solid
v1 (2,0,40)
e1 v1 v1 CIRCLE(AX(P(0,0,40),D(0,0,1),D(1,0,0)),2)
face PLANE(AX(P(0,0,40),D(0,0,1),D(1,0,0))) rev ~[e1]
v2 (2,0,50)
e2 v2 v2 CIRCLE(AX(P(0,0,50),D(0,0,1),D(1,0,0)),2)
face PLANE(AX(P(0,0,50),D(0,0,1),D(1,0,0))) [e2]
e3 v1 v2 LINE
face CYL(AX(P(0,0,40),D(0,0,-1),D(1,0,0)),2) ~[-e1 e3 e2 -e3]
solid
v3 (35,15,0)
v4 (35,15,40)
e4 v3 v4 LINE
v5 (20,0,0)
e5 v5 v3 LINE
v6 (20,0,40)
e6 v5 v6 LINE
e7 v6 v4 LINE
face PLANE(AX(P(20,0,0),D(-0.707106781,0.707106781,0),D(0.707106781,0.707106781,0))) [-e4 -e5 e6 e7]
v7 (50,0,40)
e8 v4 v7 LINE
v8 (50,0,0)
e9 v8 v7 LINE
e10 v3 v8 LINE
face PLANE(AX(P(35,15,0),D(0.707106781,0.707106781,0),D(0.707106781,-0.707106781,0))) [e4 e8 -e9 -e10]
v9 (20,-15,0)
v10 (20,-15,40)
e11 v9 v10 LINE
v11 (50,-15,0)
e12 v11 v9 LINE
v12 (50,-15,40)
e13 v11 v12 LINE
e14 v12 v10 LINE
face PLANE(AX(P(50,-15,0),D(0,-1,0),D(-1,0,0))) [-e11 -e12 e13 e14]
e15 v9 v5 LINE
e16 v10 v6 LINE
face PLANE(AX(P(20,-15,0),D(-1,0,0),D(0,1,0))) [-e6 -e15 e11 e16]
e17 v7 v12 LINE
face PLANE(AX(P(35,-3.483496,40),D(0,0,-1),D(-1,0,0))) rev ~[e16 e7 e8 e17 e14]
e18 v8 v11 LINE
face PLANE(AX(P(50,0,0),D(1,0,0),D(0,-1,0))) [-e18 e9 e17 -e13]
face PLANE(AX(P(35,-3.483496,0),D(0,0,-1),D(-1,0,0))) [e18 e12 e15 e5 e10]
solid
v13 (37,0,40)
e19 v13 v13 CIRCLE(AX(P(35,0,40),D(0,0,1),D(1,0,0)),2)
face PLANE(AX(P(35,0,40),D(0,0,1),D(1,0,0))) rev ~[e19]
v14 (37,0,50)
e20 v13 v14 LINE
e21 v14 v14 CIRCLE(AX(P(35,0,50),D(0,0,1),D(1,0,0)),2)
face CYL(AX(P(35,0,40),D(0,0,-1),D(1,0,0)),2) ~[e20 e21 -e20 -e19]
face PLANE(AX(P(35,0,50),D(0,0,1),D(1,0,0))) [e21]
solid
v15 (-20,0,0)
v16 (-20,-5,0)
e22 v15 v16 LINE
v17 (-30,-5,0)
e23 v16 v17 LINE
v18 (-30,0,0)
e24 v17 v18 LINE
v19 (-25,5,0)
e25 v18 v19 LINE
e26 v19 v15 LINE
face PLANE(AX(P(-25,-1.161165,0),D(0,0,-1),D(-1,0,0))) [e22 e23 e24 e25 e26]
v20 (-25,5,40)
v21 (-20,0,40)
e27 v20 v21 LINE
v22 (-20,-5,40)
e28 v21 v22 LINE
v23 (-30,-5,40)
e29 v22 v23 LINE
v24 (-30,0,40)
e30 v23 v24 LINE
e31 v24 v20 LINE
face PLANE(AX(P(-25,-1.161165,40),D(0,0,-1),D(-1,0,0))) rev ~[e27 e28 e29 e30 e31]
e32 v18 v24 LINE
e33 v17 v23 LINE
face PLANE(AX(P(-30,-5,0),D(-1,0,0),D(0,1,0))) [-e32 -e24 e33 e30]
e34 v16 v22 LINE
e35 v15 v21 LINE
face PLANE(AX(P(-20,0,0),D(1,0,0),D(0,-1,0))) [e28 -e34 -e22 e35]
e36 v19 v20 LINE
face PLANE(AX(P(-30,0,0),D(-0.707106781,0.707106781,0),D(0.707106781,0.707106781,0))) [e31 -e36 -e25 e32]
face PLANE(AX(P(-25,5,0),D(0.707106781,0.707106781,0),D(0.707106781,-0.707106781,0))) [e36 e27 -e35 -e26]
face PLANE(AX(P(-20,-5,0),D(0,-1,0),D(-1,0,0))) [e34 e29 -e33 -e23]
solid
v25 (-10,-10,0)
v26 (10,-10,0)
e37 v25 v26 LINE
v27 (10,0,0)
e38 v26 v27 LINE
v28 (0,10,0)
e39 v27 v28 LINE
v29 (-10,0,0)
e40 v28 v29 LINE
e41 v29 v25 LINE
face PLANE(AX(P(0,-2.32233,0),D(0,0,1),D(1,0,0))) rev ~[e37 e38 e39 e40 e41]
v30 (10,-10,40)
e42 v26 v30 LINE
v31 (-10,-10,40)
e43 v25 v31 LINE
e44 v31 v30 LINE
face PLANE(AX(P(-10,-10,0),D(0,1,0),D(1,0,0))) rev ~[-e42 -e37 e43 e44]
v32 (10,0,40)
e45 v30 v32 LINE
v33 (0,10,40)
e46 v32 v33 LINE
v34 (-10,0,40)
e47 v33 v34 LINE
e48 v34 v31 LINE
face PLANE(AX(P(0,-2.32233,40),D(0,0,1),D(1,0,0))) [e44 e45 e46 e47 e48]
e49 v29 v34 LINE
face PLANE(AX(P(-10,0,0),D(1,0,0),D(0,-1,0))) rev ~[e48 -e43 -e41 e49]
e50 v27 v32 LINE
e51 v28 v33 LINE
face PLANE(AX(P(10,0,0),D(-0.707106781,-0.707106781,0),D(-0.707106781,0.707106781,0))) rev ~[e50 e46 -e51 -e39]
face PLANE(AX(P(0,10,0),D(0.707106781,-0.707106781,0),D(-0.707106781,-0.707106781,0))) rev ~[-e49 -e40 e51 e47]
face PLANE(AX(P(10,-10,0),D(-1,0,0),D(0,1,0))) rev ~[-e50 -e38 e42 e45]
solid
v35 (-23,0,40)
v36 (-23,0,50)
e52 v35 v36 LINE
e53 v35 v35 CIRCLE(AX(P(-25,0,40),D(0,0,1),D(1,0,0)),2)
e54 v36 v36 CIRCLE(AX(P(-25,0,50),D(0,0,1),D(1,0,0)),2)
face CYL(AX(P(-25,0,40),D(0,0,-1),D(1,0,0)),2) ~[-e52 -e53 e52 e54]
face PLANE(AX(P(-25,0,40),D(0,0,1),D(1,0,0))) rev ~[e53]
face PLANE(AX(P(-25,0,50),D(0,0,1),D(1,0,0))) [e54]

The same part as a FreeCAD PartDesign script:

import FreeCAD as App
import Part
import Sketcher

V = App.Vector
Q = App.Units.Quantity

doc = App.newDocument("Part")
body = doc.addObject("PartDesign::Body", "Body")
body.AllowCompound = True

# Sketch on XY plane
sketch1 = body.newObject("Sketcher::SketchObject", "Sketch")
sketch1.AttachmentSupport = (doc.getObject("XY_Plane"), [""])
sketch1.MapMode = "FlatFace"
sketch1.addGeometry([
    Part.LineSegment(V(0, 10, 0), V(-10, 0, 0)),  # 0
    Part.LineSegment(V(-10, 0, 0), V(-10, -10, 0)),  # 1
    Part.LineSegment(V(-10, -10, 0), V(10, -10, 0)),  # 2
    Part.LineSegment(V(10, -10, 0), V(10, 0, 0)),  # 3
    Part.LineSegment(V(10, 0, 0), V(0, 10, 0)),  # 4
    Part.LineSegment(V(-25, 5, 0), V(-30, 0, 0)),  # 5
    Part.LineSegment(V(-30, 0, 0), V(-30, -5, 0)),  # 6
    Part.LineSegment(V(-30, -5, 0), V(-20, -5, 0)),  # 7
    Part.LineSegment(V(-20, -5, 0), V(-20, 0, 0)),  # 8
    Part.LineSegment(V(-20, 0, 0), V(-25, 5, 0)),  # 9
    Part.LineSegment(V(35, 15, 0), V(20, 0, 0)),  # 10
    Part.LineSegment(V(20, 0, 0), V(20, -15, 0)),  # 11
    Part.LineSegment(V(20, -15, 0), V(50, -15, 0)),  # 12
    Part.LineSegment(V(50, -15, 0), V(50, 0, 0)),  # 13
    Part.LineSegment(V(50, 0, 0), V(35, 15, 0)),  # 14
], False)
sketch1.addConstraint([
    Sketcher.Constraint("Coincident", 0, 2, 1, 1),
    Sketcher.Constraint("Coincident", 1, 2, 2, 1),
    Sketcher.Constraint("Coincident", 2, 2, 3, 1),
    Sketcher.Constraint("Coincident", 3, 2, 4, 1),
    Sketcher.Constraint("Coincident", 4, 2, 0, 1),
    Sketcher.Constraint("Coincident", 5, 2, 6, 1),
    Sketcher.Constraint("Coincident", 6, 2, 7, 1),
    Sketcher.Constraint("Coincident", 7, 2, 8, 1),
    Sketcher.Constraint("Coincident", 8, 2, 9, 1),
    Sketcher.Constraint("Coincident", 9, 2, 5, 1),
    Sketcher.Constraint("Coincident", 10, 2, 11, 1),
    Sketcher.Constraint("Coincident", 11, 2, 12, 1),
    Sketcher.Constraint("Coincident", 12, 2, 13, 1),
    Sketcher.Constraint("Coincident", 13, 2, 14, 1),
    Sketcher.Constraint("Coincident", 14, 2, 10, 1),
    Sketcher.Constraint("Vertical", 1),
    Sketcher.Constraint("Horizontal", 2),
    Sketcher.Constraint("Vertical", 3),
    Sketcher.Constraint("Vertical", 6),
    Sketcher.Constraint("Horizontal", 7),
    Sketcher.Constraint("Vertical", 8),
    Sketcher.Constraint("Vertical", 11),
    Sketcher.Constraint("Horizontal", 12),
    Sketcher.Constraint("Vertical", 13),
    Sketcher.Constraint("Symmetric", 0, 2, 3, 2, -1, 1),
    Sketcher.Constraint("Symmetric", 8, 2, 10, 2, -1, 1),
    Sketcher.Constraint("PointOnObject", 0, 2, -1),
    Sketcher.Constraint("PointOnObject", 4, 2, -2),
    Sketcher.Constraint("PointOnObject", 5, 2, -1),
    Sketcher.Constraint("PointOnObject", 8, 2, -1),
    Sketcher.Constraint("PointOnObject", 13, 2, -1),
    Sketcher.Constraint("Perpendicular", 0, 4),
    Sketcher.Constraint("Perpendicular", 4, 5),
    Sketcher.Constraint("Perpendicular", 5, 9),
    Sketcher.Constraint("Perpendicular", 9, 10),
    Sketcher.Constraint("Perpendicular", 10, 14),
    Sketcher.Constraint("Equal", 7, 1),
    Sketcher.Constraint("DistanceX", 2, 1, 2, 2, Q("20 mm")),
    Sketcher.Constraint("DistanceX", 7, 1, 7, 2, Q("10 mm")),
    Sketcher.Constraint("DistanceX", 12, 1, 12, 2, Q("30 mm")),
    Sketcher.Constraint("DistanceY", 6, 2, 6, 1, Q("5 mm")),
    Sketcher.Constraint("DistanceY", 11, 2, 11, 1, Q("15 mm")),
    Sketcher.Constraint("DistanceX", 5, 2, -1, 1, Q("30 mm")),
])
pad1 = body.newObject("PartDesign::Pad", "Pad")
pad1.Profile = sketch1
pad1.Length = 40
body2 = doc.addObject("PartDesign::Body", "Body001")

# Sketch on XY plane
sketch2 = body2.newObject("Sketcher::SketchObject", "Sketch001")
sketch2.AttachmentSupport = (doc.getObject("XY_Plane001"), [""])
sketch2.MapMode = "FlatFace"
sketch2.AttachmentOffset = App.Placement(V(0, 0, 40), App.Rotation())
sketch2.addGeometry(Part.Circle(V(0, 0, 0), V(0, 0, 1), 2), False)
sketch2.addConstraint([
    Sketcher.Constraint("Coincident", 0, 3, -1, 1),
    Sketcher.Constraint("Diameter", 0, Q("4 mm")),
])
pad2 = body2.newObject("PartDesign::Pad", "Pad001")
pad2.Profile = sketch2
pad2.Length = 10
body3 = doc.addObject("PartDesign::Body", "Body002")

# Sketch on XY plane
sketch3 = body3.newObject("Sketcher::SketchObject", "Sketch002")
sketch3.AttachmentSupport = (doc.getObject("XY_Plane002"), [""])
sketch3.MapMode = "FlatFace"
sketch3.AttachmentOffset = App.Placement(V(0, 0, 40), App.Rotation())
sketch3.addGeometry(Part.Circle(V(35, 0, 0), V(0, 0, 1), 2), False)
sketch3.addConstraint([
    Sketcher.Constraint("PointOnObject", 0, 3, -1),
    Sketcher.Constraint("Diameter", 0, Q("4 mm")),
    Sketcher.Constraint("DistanceX", -1, 1, 0, 3, Q("35 mm")),
])
pad3 = body3.newObject("PartDesign::Pad", "Pad002")
pad3.Profile = sketch3
pad3.Length = 10
body4 = doc.addObject("PartDesign::Body", "Body003")

# Sketch on XY plane
sketch4 = body4.newObject("Sketcher::SketchObject", "Sketch003")
sketch4.AttachmentSupport = (doc.getObject("XY_Plane003"), [""])
sketch4.MapMode = "FlatFace"
sketch4.AttachmentOffset = App.Placement(V(0, 0, 40), App.Rotation())
sketch4.addGeometry(Part.Circle(V(-25, 0, 0), V(0, 0, 1), 2), False)
sketch4.addConstraint([
    Sketcher.Constraint("PointOnObject", 0, 3, -1),
    Sketcher.Constraint("Diameter", 0, Q("4 mm")),
    Sketcher.Constraint("DistanceX", 0, 3, -1, 1, Q("25 mm")),
])
pad4 = body4.newObject("PartDesign::Pad", "Pad003")
pad4.Profile = sketch4
pad4.Length = 10

doc.recompute()
